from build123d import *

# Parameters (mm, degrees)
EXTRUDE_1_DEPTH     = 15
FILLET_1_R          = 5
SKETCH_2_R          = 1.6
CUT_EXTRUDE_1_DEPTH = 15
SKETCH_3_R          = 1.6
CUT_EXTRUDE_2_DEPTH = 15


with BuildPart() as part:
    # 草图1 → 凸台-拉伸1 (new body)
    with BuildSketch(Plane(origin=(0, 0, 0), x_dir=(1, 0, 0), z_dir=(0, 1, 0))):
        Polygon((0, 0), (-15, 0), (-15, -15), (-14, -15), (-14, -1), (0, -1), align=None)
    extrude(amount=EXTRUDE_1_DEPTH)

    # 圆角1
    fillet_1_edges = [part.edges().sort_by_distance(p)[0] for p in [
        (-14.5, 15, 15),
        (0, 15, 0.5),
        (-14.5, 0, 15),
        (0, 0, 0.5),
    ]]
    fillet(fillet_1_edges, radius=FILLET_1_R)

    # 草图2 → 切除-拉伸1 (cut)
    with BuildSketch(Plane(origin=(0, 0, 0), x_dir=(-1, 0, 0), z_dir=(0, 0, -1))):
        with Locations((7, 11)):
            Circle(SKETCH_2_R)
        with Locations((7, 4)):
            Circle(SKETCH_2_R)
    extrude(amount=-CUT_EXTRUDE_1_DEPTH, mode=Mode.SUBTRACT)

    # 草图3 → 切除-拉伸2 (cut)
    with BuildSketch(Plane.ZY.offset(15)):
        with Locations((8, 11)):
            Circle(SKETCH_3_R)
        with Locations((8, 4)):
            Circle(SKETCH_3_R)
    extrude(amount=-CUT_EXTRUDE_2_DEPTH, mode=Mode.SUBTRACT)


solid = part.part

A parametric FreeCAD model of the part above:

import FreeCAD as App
import Part
import Sketcher
Q = App.Units.Quantity


def edges_at(feature, points):
    """Names of the edges that pass closest to the given points."""
    edges = feature.Shape.Edges
    near = lambda p: min(range(len(edges)), key=lambda i: edges[i].distToShape(Part.Vertex(*p))[0])
    return sorted({f"Edge{near(p) + 1}" for p in points})

doc = App.newDocument("Part")
body = doc.addObject("PartDesign::Body", "Body")

sketch1 = doc.addObject("Sketcher::SketchObject", "Sketch")
body.addObject(sketch1)
sketch1.AttachmentSupport = (doc.XZ_Plane, [""])
sketch1.MapMode = "FlatFace"
sketch1.addGeometry([
    Part.LineSegment(App.Vector(0, 0, 0), App.Vector(-15, 0, 0)),
    Part.LineSegment(App.Vector(-15, 0, 0), App.Vector(-15, 15, 0)),
    Part.LineSegment(App.Vector(-15, 15, 0), App.Vector(-14, 15, 0)),
    Part.LineSegment(App.Vector(-14, 15, 0), App.Vector(-14, 1, 0)),
    Part.LineSegment(App.Vector(-14, 1, 0), App.Vector(0, 1, 0)),
    Part.LineSegment(App.Vector(0, 1, 0), App.Vector(0, 0, 0)),
], False)
sketch1.addConstraint([
    Sketcher.Constraint("Coincident", 0, 2, 1, 1),
    Sketcher.Constraint("Coincident", 1, 2, 2, 1),
    Sketcher.Constraint("Coincident", 2, 2, 3, 1),
    Sketcher.Constraint("Coincident", 3, 2, 4, 1),
    Sketcher.Constraint("Coincident", 4, 2, 5, 1),
    Sketcher.Constraint("Coincident", 5, 2, 0, 1),
    Sketcher.Constraint("Horizontal", 0),
    Sketcher.Constraint("Vertical", 1),
    Sketcher.Constraint("Horizontal", 2),
    Sketcher.Constraint("Vertical", 3),
    Sketcher.Constraint("Horizontal", 4),
    Sketcher.Constraint("Vertical", 5),
    Sketcher.Constraint("Coincident", 5, 2, -1, 1),
    Sketcher.Constraint("Equal", 0, 1),
    Sketcher.Constraint("Equal", 4, 3),
    Sketcher.Constraint("DistanceX", 0, 2, 0, 1, Q("15 mm")),
    Sketcher.Constraint("DistanceX", 2, 1, 2, 2, Q("1 mm")),
])
pad1 = doc.addObject("PartDesign::Pad", "Pad")
body.addObject(pad1)
pad1.Profile = sketch1
pad1.Length = 15
pad1.Reversed = True
doc.recompute()

fillet = doc.addObject("PartDesign::Fillet", "Fillet")
body.addObject(fillet)
fillet.Base = (pad1, edges_at(pad1, [
    (-14.5, 15, 15),
    (0, 15, 0.5),
    (-14.5, 0, 15),
    (0, 0, 0.5),
]))
fillet.Radius = 5

sketch2 = doc.addObject("Sketcher::SketchObject", "Sketch001")
body.addObject(sketch2)
sketch2.AttachmentSupport = (doc.XY_Plane, [""])
sketch2.MapMode = "FlatFace"
sketch2.addGeometry([
    Part.Circle(App.Vector(-7, 11, 0), App.Vector(0, 0, 1), 1.6),
    Part.Circle(App.Vector(-7, 4, 0), App.Vector(0, 0, 1), 1.6),
], False)
sketch2.addConstraint([
    Sketcher.Constraint("Equal", 0, 1),
    Sketcher.Constraint("Vertical", 0, 3, 1, 3),
    Sketcher.Constraint("Diameter", 0, Q("3.2 mm")),
    Sketcher.Constraint("DistanceX", 0, 3, -1, 1, Q("7 mm")),
    Sketcher.Constraint("DistanceY", -1, 1, 0, 3, Q("11 mm")),
    Sketcher.Constraint("DistanceY", -1, 1, 1, 3, Q("4 mm")),
])
pocket1 = doc.addObject("PartDesign::Pocket", "Pocket")
body.addObject(pocket1)
pocket1.Profile = sketch2
pocket1.Length = 15
pocket1.Reversed = True

sketch3 = doc.addObject("Sketcher::SketchObject", "Sketch002")
body.addObject(sketch3)
sketch3.AttachmentSupport = (doc.YZ_Plane, [""])
sketch3.MapMode = "FlatFace"
sketch3.AttachmentOffset = App.Placement(App.Vector(0, 0, -15), App.Rotation())
sketch3.addGeometry([
    Part.Circle(App.Vector(11, 8, 0), App.Vector(0, 0, 1), 1.6),
    Part.Circle(App.Vector(4, 8, 0), App.Vector(0, 0, 1), 1.6),
], False)
sketch3.addConstraint([
    Sketcher.Constraint("Equal", 0, 1),
    Sketcher.Constraint("Horizontal", 0, 3, 1, 3),
    Sketcher.Constraint("Diameter", 0, Q("3.2 mm")),
    Sketcher.Constraint("DistanceX", -1, 1, 0, 3, Q("11 mm")),
    Sketcher.Constraint("DistanceY", -1, 1, 0, 3, Q("8 mm")),
    Sketcher.Constraint("DistanceX", -1, 1, 1, 3, Q("4 mm")),
])
pocket2 = doc.addObject("PartDesign::Pocket", "Pocket001")
body.addObject(pocket2)
pocket2.Profile = sketch3
pocket2.Length = 15
pocket2.Reversed = True

doc.recompute()
